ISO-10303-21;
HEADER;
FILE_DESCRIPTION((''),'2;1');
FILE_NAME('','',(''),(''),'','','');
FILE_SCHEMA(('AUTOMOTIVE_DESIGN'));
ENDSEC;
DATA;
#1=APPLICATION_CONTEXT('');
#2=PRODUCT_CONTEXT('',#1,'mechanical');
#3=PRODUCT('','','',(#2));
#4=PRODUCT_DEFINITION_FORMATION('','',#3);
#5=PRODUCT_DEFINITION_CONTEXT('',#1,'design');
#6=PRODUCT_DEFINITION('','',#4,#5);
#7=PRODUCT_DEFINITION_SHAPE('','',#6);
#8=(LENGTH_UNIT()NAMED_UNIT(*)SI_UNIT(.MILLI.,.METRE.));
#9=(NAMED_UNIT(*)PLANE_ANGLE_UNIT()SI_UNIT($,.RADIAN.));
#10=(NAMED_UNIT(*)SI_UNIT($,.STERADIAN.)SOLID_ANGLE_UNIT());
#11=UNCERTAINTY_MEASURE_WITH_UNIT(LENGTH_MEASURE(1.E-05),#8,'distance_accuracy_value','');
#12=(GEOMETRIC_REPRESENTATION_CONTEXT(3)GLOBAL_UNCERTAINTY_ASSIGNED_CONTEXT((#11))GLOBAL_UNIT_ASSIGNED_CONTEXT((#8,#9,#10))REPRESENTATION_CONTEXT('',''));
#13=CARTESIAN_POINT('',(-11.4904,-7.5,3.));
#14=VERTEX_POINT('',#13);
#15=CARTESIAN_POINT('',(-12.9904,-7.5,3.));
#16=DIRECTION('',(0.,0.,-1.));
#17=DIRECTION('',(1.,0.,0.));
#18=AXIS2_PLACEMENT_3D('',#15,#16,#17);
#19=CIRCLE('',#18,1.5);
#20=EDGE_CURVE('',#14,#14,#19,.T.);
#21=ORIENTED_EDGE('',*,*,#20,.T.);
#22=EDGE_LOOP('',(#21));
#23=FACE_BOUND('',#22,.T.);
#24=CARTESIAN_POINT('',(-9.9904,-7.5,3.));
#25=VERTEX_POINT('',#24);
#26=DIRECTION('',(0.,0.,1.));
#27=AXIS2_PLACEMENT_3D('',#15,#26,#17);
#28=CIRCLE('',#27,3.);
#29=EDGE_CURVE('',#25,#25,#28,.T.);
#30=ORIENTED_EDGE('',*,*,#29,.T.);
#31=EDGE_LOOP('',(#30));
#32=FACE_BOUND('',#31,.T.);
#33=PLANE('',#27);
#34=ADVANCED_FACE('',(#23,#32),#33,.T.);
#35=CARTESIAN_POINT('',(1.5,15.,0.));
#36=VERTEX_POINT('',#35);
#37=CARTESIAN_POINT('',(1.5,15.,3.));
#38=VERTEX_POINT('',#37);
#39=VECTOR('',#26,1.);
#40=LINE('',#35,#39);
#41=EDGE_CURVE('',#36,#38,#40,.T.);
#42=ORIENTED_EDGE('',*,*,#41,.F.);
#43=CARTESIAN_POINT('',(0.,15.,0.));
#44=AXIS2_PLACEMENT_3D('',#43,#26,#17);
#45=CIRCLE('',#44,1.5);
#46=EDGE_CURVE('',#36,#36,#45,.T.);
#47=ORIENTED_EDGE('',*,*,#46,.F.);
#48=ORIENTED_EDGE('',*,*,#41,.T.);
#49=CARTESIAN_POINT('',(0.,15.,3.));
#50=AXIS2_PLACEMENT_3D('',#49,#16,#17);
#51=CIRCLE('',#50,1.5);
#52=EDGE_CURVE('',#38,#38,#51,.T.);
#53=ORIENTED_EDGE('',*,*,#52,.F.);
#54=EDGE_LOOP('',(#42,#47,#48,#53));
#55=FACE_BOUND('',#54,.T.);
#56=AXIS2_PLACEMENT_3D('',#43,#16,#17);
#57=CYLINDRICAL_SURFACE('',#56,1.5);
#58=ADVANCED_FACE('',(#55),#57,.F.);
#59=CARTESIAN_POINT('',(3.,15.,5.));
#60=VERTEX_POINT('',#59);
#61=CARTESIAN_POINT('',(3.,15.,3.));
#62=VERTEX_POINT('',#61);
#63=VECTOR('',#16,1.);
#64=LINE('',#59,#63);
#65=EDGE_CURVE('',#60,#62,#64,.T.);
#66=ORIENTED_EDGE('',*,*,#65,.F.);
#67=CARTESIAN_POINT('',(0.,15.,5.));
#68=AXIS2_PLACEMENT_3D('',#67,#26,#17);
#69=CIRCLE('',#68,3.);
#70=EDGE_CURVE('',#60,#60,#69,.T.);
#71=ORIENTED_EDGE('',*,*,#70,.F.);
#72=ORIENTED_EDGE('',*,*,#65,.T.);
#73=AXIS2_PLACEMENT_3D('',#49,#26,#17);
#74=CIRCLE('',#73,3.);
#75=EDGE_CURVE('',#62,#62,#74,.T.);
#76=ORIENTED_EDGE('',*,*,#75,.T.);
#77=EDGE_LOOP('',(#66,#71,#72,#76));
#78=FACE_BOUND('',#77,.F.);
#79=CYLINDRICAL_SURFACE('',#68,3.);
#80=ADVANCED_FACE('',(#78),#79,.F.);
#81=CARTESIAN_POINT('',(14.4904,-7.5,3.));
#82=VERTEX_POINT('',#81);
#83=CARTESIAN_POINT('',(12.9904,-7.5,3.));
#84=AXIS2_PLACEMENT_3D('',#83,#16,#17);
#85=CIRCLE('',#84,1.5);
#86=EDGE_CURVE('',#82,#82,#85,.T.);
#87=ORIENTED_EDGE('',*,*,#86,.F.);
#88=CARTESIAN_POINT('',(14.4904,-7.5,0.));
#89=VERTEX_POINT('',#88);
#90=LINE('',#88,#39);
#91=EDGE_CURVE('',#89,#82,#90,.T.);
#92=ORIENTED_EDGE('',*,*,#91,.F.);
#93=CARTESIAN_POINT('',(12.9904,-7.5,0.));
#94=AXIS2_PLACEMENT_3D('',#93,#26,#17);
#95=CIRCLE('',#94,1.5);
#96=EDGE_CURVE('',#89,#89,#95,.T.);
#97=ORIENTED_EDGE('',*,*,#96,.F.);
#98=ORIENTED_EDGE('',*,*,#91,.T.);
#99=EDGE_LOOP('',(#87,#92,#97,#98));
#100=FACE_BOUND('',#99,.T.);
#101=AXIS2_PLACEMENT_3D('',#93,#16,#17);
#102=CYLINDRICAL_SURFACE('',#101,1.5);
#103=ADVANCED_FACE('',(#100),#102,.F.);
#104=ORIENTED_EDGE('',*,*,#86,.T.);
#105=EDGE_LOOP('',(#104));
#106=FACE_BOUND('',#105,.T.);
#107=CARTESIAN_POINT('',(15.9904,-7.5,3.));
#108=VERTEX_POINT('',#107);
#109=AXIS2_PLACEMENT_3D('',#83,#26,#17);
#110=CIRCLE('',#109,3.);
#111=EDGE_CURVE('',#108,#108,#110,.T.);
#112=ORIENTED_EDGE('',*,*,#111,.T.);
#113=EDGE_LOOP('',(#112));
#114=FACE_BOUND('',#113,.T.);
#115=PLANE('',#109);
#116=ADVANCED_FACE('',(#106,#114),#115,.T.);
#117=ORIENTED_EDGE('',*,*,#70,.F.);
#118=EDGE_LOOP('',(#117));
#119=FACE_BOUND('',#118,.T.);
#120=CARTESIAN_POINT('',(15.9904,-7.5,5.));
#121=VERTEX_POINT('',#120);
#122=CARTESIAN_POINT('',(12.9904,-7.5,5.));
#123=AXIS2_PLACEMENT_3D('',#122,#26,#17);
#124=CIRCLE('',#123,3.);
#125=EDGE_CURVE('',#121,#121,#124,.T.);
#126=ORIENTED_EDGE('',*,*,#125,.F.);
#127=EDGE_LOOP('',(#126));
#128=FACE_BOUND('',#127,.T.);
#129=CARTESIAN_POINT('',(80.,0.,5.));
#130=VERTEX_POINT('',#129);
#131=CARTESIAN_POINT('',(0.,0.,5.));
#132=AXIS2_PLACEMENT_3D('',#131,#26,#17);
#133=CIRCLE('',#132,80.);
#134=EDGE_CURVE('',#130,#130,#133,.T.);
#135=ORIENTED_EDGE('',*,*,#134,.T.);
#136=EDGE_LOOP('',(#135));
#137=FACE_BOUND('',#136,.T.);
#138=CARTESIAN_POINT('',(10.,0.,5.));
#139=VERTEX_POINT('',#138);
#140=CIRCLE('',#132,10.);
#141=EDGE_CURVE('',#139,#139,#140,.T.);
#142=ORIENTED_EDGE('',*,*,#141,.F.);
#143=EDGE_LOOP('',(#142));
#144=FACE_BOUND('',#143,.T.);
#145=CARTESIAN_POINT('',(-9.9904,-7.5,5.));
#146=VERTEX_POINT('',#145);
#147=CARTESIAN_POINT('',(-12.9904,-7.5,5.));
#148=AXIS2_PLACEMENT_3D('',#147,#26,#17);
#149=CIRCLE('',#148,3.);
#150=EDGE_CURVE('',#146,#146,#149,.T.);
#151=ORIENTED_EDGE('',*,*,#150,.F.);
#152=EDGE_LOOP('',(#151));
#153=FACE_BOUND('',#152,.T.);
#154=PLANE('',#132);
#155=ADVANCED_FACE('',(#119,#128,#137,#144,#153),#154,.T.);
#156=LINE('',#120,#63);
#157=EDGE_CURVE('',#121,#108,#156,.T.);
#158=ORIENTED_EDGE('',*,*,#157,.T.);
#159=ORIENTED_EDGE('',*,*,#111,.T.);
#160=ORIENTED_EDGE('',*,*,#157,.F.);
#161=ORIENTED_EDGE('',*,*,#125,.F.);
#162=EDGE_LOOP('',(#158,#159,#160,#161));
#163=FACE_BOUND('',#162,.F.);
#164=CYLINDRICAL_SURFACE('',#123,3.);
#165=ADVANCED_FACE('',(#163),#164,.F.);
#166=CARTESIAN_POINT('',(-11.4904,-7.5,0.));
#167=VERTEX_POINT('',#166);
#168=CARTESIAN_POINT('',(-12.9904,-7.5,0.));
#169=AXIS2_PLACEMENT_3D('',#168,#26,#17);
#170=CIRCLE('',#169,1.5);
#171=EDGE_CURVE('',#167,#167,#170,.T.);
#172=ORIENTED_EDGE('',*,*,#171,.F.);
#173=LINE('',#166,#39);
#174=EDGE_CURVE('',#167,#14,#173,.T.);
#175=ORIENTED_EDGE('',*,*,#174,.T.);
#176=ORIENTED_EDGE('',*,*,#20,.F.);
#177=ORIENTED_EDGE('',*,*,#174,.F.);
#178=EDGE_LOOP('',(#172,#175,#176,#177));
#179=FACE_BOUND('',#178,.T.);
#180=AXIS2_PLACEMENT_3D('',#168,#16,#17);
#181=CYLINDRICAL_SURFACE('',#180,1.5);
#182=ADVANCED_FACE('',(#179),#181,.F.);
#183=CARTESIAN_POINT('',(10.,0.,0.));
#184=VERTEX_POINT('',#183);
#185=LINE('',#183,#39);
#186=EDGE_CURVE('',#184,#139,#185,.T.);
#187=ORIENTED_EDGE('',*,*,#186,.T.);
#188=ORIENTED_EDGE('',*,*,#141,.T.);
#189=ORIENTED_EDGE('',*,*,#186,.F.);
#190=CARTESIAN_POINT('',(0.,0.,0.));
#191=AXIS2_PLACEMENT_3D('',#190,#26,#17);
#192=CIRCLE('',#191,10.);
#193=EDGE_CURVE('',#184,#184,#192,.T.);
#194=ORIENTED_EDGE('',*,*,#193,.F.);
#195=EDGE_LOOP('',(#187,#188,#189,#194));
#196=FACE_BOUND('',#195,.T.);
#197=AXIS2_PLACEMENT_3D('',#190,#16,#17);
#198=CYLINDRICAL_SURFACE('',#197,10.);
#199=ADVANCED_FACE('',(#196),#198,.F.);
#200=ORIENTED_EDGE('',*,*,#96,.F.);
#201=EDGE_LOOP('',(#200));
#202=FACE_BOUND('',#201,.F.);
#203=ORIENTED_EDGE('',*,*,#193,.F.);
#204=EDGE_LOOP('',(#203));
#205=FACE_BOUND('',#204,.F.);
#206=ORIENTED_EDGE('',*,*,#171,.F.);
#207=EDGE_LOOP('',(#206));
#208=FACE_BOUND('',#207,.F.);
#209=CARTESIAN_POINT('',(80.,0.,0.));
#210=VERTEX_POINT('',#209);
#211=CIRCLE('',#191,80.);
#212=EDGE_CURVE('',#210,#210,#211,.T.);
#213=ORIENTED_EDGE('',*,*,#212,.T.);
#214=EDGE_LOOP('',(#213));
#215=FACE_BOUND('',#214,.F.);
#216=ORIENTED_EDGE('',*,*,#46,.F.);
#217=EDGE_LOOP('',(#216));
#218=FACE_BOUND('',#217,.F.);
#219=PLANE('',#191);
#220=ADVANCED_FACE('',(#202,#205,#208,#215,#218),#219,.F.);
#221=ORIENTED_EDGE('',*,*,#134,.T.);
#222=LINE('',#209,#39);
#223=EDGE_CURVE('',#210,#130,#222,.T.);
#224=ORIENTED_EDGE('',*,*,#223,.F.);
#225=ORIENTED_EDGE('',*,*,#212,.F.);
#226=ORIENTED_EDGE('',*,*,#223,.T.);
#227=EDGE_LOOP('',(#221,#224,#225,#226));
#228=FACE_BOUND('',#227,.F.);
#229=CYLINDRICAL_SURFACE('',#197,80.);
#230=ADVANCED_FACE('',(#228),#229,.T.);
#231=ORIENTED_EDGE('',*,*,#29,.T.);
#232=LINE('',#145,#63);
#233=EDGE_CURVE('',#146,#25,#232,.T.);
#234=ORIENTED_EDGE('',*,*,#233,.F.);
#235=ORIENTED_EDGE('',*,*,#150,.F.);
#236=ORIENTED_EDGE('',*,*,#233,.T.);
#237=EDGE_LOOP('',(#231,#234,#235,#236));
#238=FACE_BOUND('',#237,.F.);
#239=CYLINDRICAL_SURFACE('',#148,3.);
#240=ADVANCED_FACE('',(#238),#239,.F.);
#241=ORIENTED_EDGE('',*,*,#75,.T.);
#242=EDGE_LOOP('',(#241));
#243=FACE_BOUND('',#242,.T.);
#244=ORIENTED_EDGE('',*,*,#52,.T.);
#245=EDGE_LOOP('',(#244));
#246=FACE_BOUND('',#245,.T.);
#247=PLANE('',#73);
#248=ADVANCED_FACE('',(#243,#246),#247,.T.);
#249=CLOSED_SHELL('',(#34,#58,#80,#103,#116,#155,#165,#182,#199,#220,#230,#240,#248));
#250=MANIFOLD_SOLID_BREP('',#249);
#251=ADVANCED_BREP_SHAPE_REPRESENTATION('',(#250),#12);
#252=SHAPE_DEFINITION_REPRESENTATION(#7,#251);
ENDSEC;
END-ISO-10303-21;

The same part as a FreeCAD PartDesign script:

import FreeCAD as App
import Part
import Sketcher
from FreeCAD import Vector

doc = App.newDocument("Part")
body = doc.addObject("PartDesign::Body", "Body")

# Sketch on XY plane
sketch1 = body.newObject("Sketcher::SketchObject", "Sketch")
sketch1.AttachmentSupport = (doc.getObject("XY_Plane"), [""])
sketch1.MapMode = "FlatFace"
sketch1.addGeometry([
    Part.Circle(Vector(0, 0, 0), Vector(0, 0, 1), 80),  # 0
    Part.Circle(Vector(-13, -7.5, 0), Vector(0, 0, 1), 1.5),  # 1
    Part.Circle(Vector(13, -7.5, 0), Vector(0, 0, 1), 1.5),  # 2
    Part.Circle(Vector(0, 0, 0), Vector(0, 0, 1), 10),  # 3
    Part.Circle(Vector(0, 15, 0), Vector(0, 0, 1), 1.5),  # 4
], False)
sketch1.addConstraint([
    Sketcher.Constraint("Coincident", 0, 3, -1, 1),
    Sketcher.Constraint("Coincident", 3, 3, -1, 1),
    Sketcher.Constraint("Equal", 1, 2),
    Sketcher.Constraint("Equal", 2, 4),
    Sketcher.Constraint("Symmetric", 1, 3, 2, 3, -2),
    Sketcher.Constraint("PointOnObject", 4, 3, -2),
    Sketcher.Constraint("Diameter", 0, 160.0),
    Sketcher.Constraint("Diameter", 1, 3.0),
    Sketcher.Constraint("Diameter", 3, 20.0),
    Sketcher.Constraint("DistanceY", -1, 1, 4, 3, 15.0),
    Sketcher.Constraint("DistanceY", 1, 3, -1, 1, 7.5),
    Sketcher.Constraint("DistanceX", 1, 3, -1, 1, 12.9904),
])
pad1 = body.newObject("PartDesign::Pad", "Pad")
pad1.Profile = sketch1
pad1.Length = 5

# Sketch on XY plane
sketch2 = body.newObject("Sketcher::SketchObject", "Sketch001")
sketch2.AttachmentSupport = (doc.getObject("XY_Plane"), [""])
sketch2.MapMode = "FlatFace"
sketch2.AttachmentOffset = App.Placement(Vector(0, 0, 5), App.Rotation())
sketch2.addGeometry([
    Part.Circle(Vector(0, 15, 0), Vector(0, 0, 1), 3),
    Part.Circle(Vector(-13, -7.5, 0), Vector(0, 0, 1), 3),
    Part.Circle(Vector(13, -7.5, 0), Vector(0, 0, 1), 3),
], False)
sketch2.addConstraint([
    Sketcher.Constraint("Equal", 0, 1),
    Sketcher.Constraint("Equal", 1, 2),
    Sketcher.Constraint("Symmetric", 1, 3, 2, 3, -2),
    Sketcher.Constraint("PointOnObject", 0, 3, -2),
    Sketcher.Constraint("Diameter", 0, 6.0),
    Sketcher.Constraint("DistanceY", -1, 1, 0, 3, 15.0),
    Sketcher.Constraint("DistanceY", 1, 3, -1, 1, 7.5),
    Sketcher.Constraint("DistanceX", 1, 3, -1, 1, 12.9904),
])
pocket1 = body.newObject("PartDesign::Pocket", "Pocket")
pocket1.Profile = sketch2
pocket1.Length = 2

doc.recompute()
